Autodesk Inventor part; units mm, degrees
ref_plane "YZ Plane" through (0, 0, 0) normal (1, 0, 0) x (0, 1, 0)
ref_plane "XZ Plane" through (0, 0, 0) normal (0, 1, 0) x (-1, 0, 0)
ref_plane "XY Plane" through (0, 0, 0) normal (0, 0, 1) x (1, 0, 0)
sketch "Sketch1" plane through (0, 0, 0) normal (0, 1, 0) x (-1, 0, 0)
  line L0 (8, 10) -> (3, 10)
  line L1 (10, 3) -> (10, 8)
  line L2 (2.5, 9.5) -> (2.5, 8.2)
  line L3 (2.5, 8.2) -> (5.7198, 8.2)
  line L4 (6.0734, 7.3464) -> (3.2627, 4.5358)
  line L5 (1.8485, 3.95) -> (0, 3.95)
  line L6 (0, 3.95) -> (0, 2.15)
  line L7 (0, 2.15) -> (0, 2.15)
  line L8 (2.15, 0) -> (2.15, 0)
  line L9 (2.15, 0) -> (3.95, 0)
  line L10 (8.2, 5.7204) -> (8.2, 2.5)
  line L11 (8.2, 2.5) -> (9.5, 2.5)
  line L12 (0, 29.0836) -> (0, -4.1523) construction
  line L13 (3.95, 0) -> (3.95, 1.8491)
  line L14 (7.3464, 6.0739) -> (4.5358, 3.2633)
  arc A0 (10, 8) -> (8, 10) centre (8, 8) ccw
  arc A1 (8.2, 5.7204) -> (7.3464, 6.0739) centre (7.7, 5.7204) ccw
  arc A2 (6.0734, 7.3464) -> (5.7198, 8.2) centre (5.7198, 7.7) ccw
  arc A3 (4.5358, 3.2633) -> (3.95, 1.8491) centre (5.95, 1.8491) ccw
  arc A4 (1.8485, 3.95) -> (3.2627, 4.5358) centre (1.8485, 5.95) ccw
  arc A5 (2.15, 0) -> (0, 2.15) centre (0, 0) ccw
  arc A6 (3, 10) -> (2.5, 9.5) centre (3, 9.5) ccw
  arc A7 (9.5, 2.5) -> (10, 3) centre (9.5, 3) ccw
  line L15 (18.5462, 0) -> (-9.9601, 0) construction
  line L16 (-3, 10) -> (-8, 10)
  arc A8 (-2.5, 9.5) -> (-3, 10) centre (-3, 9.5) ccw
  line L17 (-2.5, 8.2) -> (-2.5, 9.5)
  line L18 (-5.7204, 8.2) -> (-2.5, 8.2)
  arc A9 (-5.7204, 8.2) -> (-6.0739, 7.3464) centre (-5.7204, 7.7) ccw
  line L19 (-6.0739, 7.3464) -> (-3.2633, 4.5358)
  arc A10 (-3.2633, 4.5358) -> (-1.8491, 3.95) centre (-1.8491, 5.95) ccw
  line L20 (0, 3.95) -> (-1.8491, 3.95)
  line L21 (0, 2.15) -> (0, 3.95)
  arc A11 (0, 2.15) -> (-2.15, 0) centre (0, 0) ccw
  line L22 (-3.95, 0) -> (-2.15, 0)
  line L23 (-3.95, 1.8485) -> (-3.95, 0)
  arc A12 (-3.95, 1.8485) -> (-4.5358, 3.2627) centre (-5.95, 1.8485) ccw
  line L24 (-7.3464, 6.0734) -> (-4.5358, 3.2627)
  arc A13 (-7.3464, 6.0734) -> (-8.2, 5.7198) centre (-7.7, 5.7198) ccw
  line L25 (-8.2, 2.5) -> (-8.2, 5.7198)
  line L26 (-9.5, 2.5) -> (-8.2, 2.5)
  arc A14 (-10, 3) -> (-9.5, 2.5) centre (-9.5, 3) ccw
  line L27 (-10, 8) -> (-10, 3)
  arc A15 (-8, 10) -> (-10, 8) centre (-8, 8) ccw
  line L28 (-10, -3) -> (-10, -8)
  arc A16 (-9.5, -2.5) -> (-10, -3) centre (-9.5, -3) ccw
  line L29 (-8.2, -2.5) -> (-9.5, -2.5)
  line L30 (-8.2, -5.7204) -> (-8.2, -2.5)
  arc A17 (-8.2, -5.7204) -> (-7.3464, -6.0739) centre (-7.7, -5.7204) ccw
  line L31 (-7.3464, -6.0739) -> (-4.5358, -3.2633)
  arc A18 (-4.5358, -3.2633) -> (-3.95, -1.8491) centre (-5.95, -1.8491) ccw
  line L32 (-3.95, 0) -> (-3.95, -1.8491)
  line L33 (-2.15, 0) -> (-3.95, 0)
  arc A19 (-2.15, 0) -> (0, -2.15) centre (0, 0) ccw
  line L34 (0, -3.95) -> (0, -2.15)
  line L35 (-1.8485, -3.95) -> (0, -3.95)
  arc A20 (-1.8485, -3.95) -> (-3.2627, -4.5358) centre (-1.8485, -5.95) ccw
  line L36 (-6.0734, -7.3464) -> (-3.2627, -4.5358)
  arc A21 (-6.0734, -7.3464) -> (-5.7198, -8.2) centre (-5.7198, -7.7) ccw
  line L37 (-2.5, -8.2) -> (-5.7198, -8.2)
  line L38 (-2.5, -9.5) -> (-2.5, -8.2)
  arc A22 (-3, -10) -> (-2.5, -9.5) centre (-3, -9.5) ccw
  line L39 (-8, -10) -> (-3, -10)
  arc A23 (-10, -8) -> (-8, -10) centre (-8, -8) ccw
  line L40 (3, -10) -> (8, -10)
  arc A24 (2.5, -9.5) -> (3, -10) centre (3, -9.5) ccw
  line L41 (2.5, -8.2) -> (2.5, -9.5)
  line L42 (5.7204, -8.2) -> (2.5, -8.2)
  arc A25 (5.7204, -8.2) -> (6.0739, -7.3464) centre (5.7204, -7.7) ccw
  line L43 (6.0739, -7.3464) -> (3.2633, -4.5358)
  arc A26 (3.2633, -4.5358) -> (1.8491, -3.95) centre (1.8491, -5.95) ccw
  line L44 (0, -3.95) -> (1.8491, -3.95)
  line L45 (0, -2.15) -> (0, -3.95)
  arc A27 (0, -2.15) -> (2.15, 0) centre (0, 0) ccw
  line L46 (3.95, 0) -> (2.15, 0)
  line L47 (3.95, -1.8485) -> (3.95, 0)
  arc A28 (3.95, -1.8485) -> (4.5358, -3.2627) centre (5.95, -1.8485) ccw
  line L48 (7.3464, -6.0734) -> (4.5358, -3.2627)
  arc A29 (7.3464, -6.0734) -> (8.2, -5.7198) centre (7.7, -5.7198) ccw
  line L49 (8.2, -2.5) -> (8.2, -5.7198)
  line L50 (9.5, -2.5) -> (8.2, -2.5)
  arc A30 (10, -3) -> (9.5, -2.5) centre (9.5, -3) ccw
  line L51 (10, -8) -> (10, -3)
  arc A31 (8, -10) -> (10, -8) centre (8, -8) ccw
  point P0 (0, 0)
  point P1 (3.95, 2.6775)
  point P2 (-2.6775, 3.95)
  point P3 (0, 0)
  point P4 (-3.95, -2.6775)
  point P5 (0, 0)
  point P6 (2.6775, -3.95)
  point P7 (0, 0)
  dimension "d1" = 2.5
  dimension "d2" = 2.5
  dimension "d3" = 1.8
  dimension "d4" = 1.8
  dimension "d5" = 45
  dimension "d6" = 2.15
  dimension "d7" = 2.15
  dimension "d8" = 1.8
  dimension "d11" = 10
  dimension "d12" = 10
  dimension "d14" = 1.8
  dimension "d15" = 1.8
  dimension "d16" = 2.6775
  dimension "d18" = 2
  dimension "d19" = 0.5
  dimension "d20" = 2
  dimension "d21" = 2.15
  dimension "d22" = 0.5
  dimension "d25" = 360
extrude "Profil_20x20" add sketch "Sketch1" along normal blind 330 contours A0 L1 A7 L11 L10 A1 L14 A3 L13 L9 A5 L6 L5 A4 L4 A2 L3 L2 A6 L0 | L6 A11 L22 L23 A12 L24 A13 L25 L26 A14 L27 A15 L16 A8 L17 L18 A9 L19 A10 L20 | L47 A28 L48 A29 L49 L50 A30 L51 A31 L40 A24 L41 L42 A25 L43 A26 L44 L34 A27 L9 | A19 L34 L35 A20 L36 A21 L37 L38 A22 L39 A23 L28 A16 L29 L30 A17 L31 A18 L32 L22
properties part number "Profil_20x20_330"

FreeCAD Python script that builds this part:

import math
import FreeCAD as App
import Part
import Sketcher

doc = App.newDocument("Part")
params = doc.addObject("Spreadsheet::Sheet", "Params")
for row, (alias, value) in enumerate([
    ("sketch1_radius", "2 mm"),
    ("sketch1_diameter", "4.3 mm"),
    ("sketch1_radius2", "0.5 mm"),
    ("sketch1_width", "1.3 mm"),
    ("pad1_length", "330 mm"),
], start=1):
    params.set(f"A{row}", alias)
    params.set(f"B{row}", "=" + value)
    params.setAlias(f"B{row}", alias)

body = doc.addObject("PartDesign::Body", "Body")

sketch1 = doc.addObject("Sketcher::SketchObject", "Sketch")
body.addObject(sketch1)
sketch1.AttachmentSupport = (doc.XZ_Plane, [""])
sketch1.MapMode = "FlatFace"
sketch1.addGeometry([
    Part.ArcOfCircle(Part.Circle(App.Vector(-8, 8, 0), App.Vector(0, 0, 1), 2), math.radians(90), math.radians(180)),
    Part.LineSegment(App.Vector(-8, 10, 0), App.Vector(-3, 10, 0)),
    Part.ArcOfCircle(Part.Circle(App.Vector(-3, 9.5, 0), App.Vector(0, 0, 1), 0.5), math.radians(0), math.radians(90)),
    Part.LineSegment(App.Vector(-2.5, 9.5, 0), App.Vector(-2.5, 8.2, 0)),
    Part.LineSegment(App.Vector(-2.5, 8.2, 0), App.Vector(-5.72, 8.2, 0)),
    Part.ArcOfCircle(Part.Circle(App.Vector(-5.72, 7.7, 0), App.Vector(0, 0, 1), 0.5), math.radians(90), math.radians(225)),
    Part.LineSegment(App.Vector(-6.07, 7.35, 0), App.Vector(-3.26, 4.54, 0)),
    Part.ArcOfCircle(Part.Circle(App.Vector(-1.85, 5.95, 0), App.Vector(0, 0, 1), 2), math.radians(-135), math.radians(-90)),
    Part.LineSegment(App.Vector(-1.85, 3.95, 0), App.Vector(1.85, 3.95, 0)),
    Part.ArcOfCircle(Part.Circle(App.Vector(1.85, 5.95, 0), App.Vector(0, 0, 1), 2), math.radians(-90), math.radians(-45)),
    Part.LineSegment(App.Vector(3.26, 4.54, 0), App.Vector(6.07, 7.35, 0)),
    Part.ArcOfCircle(Part.Circle(App.Vector(5.72, 7.7, 0), App.Vector(0, 0, 1), 0.5), math.radians(-45), math.radians(90)),
    Part.LineSegment(App.Vector(5.72, 8.2, 0), App.Vector(2.5, 8.2, 0)),
    Part.LineSegment(App.Vector(2.5, 8.2, 0), App.Vector(2.5, 9.5, 0)),
    Part.ArcOfCircle(Part.Circle(App.Vector(3, 9.5, 0), App.Vector(0, 0, 1), 0.5), math.radians(90), math.radians(180)),
    Part.LineSegment(App.Vector(3, 10, 0), App.Vector(8, 10, 0)),
    Part.ArcOfCircle(Part.Circle(App.Vector(8, 8, 0), App.Vector(0, 0, 1), 2), math.radians(0), math.radians(90)),
    Part.LineSegment(App.Vector(10, 8, 0), App.Vector(10, 3, 0)),
    Part.ArcOfCircle(Part.Circle(App.Vector(9.5, 3, 0), App.Vector(0, 0, 1), 0.5), math.radians(-90), math.radians(0)),
    Part.LineSegment(App.Vector(9.5, 2.5, 0), App.Vector(8.2, 2.5, 0)),
    Part.LineSegment(App.Vector(8.2, 2.5, 0), App.Vector(8.2, 5.72, 0)),
    Part.ArcOfCircle(Part.Circle(App.Vector(7.7, 5.72, 0), App.Vector(0, 0, 1), 0.5), math.radians(0), math.radians(135)),
    Part.LineSegment(App.Vector(7.35, 6.07, 0), App.Vector(4.54, 3.26, 0)),
    Part.ArcOfCircle(Part.Circle(App.Vector(5.95, 1.85, 0), App.Vector(0, 0, 1), 2), math.radians(135), math.radians(180)),
    Part.LineSegment(App.Vector(3.95, 1.85, 0), App.Vector(3.95, -1.85, 0)),
    Part.ArcOfCircle(Part.Circle(App.Vector(5.95, -1.85, 0), App.Vector(0, 0, 1), 2), math.radians(180), math.radians(225)),
    Part.LineSegment(App.Vector(4.54, -3.26, 0), App.Vector(7.35, -6.07, 0)),
    Part.ArcOfCircle(Part.Circle(App.Vector(7.7, -5.72, 0), App.Vector(0, 0, 1), 0.5), math.radians(-135), math.radians(0)),
    Part.LineSegment(App.Vector(8.2, -5.72, 0), App.Vector(8.2, -2.5, 0)),
    Part.LineSegment(App.Vector(8.2, -2.5, 0), App.Vector(9.5, -2.5, 0)),
    Part.ArcOfCircle(Part.Circle(App.Vector(9.5, -3, 0), App.Vector(0, 0, 1), 0.5), math.radians(0), math.radians(90)),
    Part.LineSegment(App.Vector(10, -3, 0), App.Vector(10, -8, 0)),
    Part.ArcOfCircle(Part.Circle(App.Vector(8, -8, 0), App.Vector(0, 0, 1), 2), math.radians(-90), math.radians(0)),
    Part.LineSegment(App.Vector(8, -10, 0), App.Vector(3, -10, 0)),
    Part.ArcOfCircle(Part.Circle(App.Vector(3, -9.5, 0), App.Vector(0, 0, 1), 0.5), math.radians(180), math.radians(270)),
    Part.LineSegment(App.Vector(2.5, -9.5, 0), App.Vector(2.5, -8.2, 0)),
    Part.LineSegment(App.Vector(2.5, -8.2, 0), App.Vector(5.72, -8.2, 0)),
    Part.ArcOfCircle(Part.Circle(App.Vector(5.72, -7.7, 0), App.Vector(0, 0, 1), 0.5), math.radians(-90), math.radians(45)),
    Part.LineSegment(App.Vector(6.07, -7.35, 0), App.Vector(3.26, -4.54, 0)),
    Part.ArcOfCircle(Part.Circle(App.Vector(1.85, -5.95, 0), App.Vector(0, 0, 1), 2), math.radians(45), math.radians(90)),
    Part.LineSegment(App.Vector(1.85, -3.95, 0), App.Vector(-1.85, -3.95, 0)),
    Part.ArcOfCircle(Part.Circle(App.Vector(-1.85, -5.95, 0), App.Vector(0, 0, 1), 2), math.radians(90), math.radians(135)),
    Part.LineSegment(App.Vector(-3.26, -4.54, 0), App.Vector(-6.07, -7.35, 0)),
    Part.ArcOfCircle(Part.Circle(App.Vector(-5.72, -7.7, 0), App.Vector(0, 0, 1), 0.5), math.radians(135), math.radians(270)),
    Part.LineSegment(App.Vector(-5.72, -8.2, 0), App.Vector(-2.5, -8.2, 0)),
    Part.LineSegment(App.Vector(-2.5, -8.2, 0), App.Vector(-2.5, -9.5, 0)),
    Part.ArcOfCircle(Part.Circle(App.Vector(-3, -9.5, 0), App.Vector(0, 0, 1), 0.5), math.radians(-90), math.radians(0)),
    Part.LineSegment(App.Vector(-3, -10, 0), App.Vector(-8, -10, 0)),
    Part.ArcOfCircle(Part.Circle(App.Vector(-8, -8, 0), App.Vector(0, 0, 1), 2), math.radians(180), math.radians(270)),
    Part.LineSegment(App.Vector(-10, -8, 0), App.Vector(-10, -3, 0)),
    Part.ArcOfCircle(Part.Circle(App.Vector(-9.5, -3, 0), App.Vector(0, 0, 1), 0.5), math.radians(90), math.radians(180)),
    Part.LineSegment(App.Vector(-9.5, -2.5, 0), App.Vector(-8.2, -2.5, 0)),
    Part.LineSegment(App.Vector(-8.2, -2.5, 0), App.Vector(-8.2, -5.72, 0)),
    Part.ArcOfCircle(Part.Circle(App.Vector(-7.7, -5.72, 0), App.Vector(0, 0, 1), 0.5), math.radians(180), math.radians(315)),
    Part.LineSegment(App.Vector(-7.35, -6.07, 0), App.Vector(-4.54, -3.26, 0)),
    Part.ArcOfCircle(Part.Circle(App.Vector(-5.95, -1.85, 0), App.Vector(0, 0, 1), 2), math.radians(-45), math.radians(0)),
    Part.LineSegment(App.Vector(-3.95, -1.85, 0), App.Vector(-3.95, 1.85, 0)),
    Part.ArcOfCircle(Part.Circle(App.Vector(-5.95, 1.85, 0), App.Vector(0, 0, 1), 2), math.radians(0), math.radians(45)),
    Part.LineSegment(App.Vector(-4.54, 3.26, 0), App.Vector(-7.35, 6.07, 0)),
    Part.ArcOfCircle(Part.Circle(App.Vector(-7.7, 5.72, 0), App.Vector(0, 0, 1), 0.5), math.radians(45), math.radians(180)),
    Part.LineSegment(App.Vector(-8.2, 5.72, 0), App.Vector(-8.2, 2.5, 0)),
    Part.LineSegment(App.Vector(-8.2, 2.5, 0), App.Vector(-9.5, 2.5, 0)),
    Part.ArcOfCircle(Part.Circle(App.Vector(-9.5, 3, 0), App.Vector(0, 0, 1), 0.5), math.radians(180), math.radians(270)),
    Part.LineSegment(App.Vector(-10, 3, 0), App.Vector(-10, 8, 0)),
    Part.Circle(App.Vector(0, 0, 0), App.Vector(0, 0, 1), 2.15),
], False)
sketch1.addConstraint([
    Sketcher.Constraint("Tangent", 0, 1, 1, 1),
    Sketcher.Constraint("Tangent", 1, 2, 2, 2),
    Sketcher.Constraint("Tangent", 2, 1, 3, 1),
    Sketcher.Constraint("Coincident", 3, 2, 4, 1),
    Sketcher.Constraint("Tangent", 4, 2, 5, 1),
    Sketcher.Constraint("Tangent", 5, 2, 6, 1),
    Sketcher.Constraint("Tangent", 6, 2, 7, 1),
    Sketcher.Constraint("Tangent", 7, 2, 8, 1),
    Sketcher.Constraint("Tangent", 8, 2, 9, 1),
    Sketcher.Constraint("Tangent", 9, 2, 10, 1),
    Sketcher.Constraint("Tangent", 10, 2, 11, 1),
    Sketcher.Constraint("Tangent", 11, 2, 12, 1),
    Sketcher.Constraint("Coincident", 12, 2, 13, 1),
    Sketcher.Constraint("Tangent", 13, 2, 14, 2),
    Sketcher.Constraint("Tangent", 14, 1, 15, 1),
    Sketcher.Constraint("Tangent", 15, 2, 16, 2),
    Sketcher.Constraint("Tangent", 16, 1, 17, 1),
    Sketcher.Constraint("Tangent", 17, 2, 18, 2),
    Sketcher.Constraint("Tangent", 18, 1, 19, 1),
    Sketcher.Constraint("Coincident", 19, 2, 20, 1),
    Sketcher.Constraint("Tangent", 20, 2, 21, 1),
    Sketcher.Constraint("Tangent", 21, 2, 22, 1),
    Sketcher.Constraint("Tangent", 22, 2, 23, 1),
    Sketcher.Constraint("Tangent", 23, 2, 24, 1),
    Sketcher.Constraint("Tangent", 24, 2, 25, 1),
    Sketcher.Constraint("Tangent", 25, 2, 26, 1),
    Sketcher.Constraint("Tangent", 26, 2, 27, 1),
    Sketcher.Constraint("Tangent", 27, 2, 28, 1),
    Sketcher.Constraint("Coincident", 28, 2, 29, 1),
    Sketcher.Constraint("Tangent", 29, 2, 30, 2),
    Sketcher.Constraint("Tangent", 30, 1, 31, 1),
    Sketcher.Constraint("Tangent", 31, 2, 32, 2),
    Sketcher.Constraint("Tangent", 32, 1, 33, 1),
    Sketcher.Constraint("Tangent", 33, 2, 34, 2),
    Sketcher.Constraint("Tangent", 34, 1, 35, 1),
    Sketcher.Constraint("Coincident", 35, 2, 36, 1),
    Sketcher.Constraint("Tangent", 36, 2, 37, 1),
    Sketcher.Constraint("Tangent", 37, 2, 38, 1),
    Sketcher.Constraint("Tangent", 38, 2, 39, 1),
    Sketcher.Constraint("Tangent", 39, 2, 40, 1),
    Sketcher.Constraint("Tangent", 40, 2, 41, 1),
    Sketcher.Constraint("Tangent", 41, 2, 42, 1),
    Sketcher.Constraint("Tangent", 42, 2, 43, 1),
    Sketcher.Constraint("Tangent", 43, 2, 44, 1),
    Sketcher.Constraint("Coincident", 44, 2, 45, 1),
    Sketcher.Constraint("Tangent", 45, 2, 46, 2),
    Sketcher.Constraint("Tangent", 46, 1, 47, 1),
    Sketcher.Constraint("Tangent", 47, 2, 48, 2),
    Sketcher.Constraint("Tangent", 48, 1, 49, 1),
    Sketcher.Constraint("Tangent", 49, 2, 50, 2),
    Sketcher.Constraint("Tangent", 50, 1, 51, 1),
    Sketcher.Constraint("Coincident", 51, 2, 52, 1),
    Sketcher.Constraint("Tangent", 52, 2, 53, 1),
    Sketcher.Constraint("Tangent", 53, 2, 54, 1),
    Sketcher.Constraint("Tangent", 54, 2, 55, 1),
    Sketcher.Constraint("Tangent", 55, 2, 56, 1),
    Sketcher.Constraint("Tangent", 56, 2, 57, 1),
    Sketcher.Constraint("Tangent", 57, 2, 58, 1),
    Sketcher.Constraint("Tangent", 58, 2, 59, 1),
    Sketcher.Constraint("Tangent", 59, 2, 60, 1),
    Sketcher.Constraint("Coincident", 60, 2, 61, 1),
    Sketcher.Constraint("Tangent", 61, 2, 62, 2),
    Sketcher.Constraint("Tangent", 62, 1, 63, 1),
    Sketcher.Constraint("Tangent", 63, 2, 0, 2),
    Sketcher.Constraint("Horizontal", 1),
    Sketcher.Constraint("Vertical", 3),
    Sketcher.Constraint("Horizontal", 4),
    Sketcher.Constraint("Horizontal", 8),
    Sketcher.Constraint("Horizontal", 12),
    Sketcher.Constraint("Vertical", 13),
    Sketcher.Constraint("Horizontal", 15),
    Sketcher.Constraint("Vertical", 17),
    Sketcher.Constraint("Horizontal", 19),
    Sketcher.Constraint("Vertical", 20),
    Sketcher.Constraint("Vertical", 24),
    Sketcher.Constraint("Vertical", 28),
    Sketcher.Constraint("Horizontal", 29),
    Sketcher.Constraint("Vertical", 31),
    Sketcher.Constraint("Horizontal", 33),
    Sketcher.Constraint("Vertical", 35),
    Sketcher.Constraint("Horizontal", 36),
    Sketcher.Constraint("Horizontal", 40),
    Sketcher.Constraint("Horizontal", 44),
    Sketcher.Constraint("Vertical", 45),
    Sketcher.Constraint("Horizontal", 47),
    Sketcher.Constraint("Vertical", 49),
    Sketcher.Constraint("Horizontal", 51),
    Sketcher.Constraint("Vertical", 52),
    Sketcher.Constraint("Vertical", 56),
    Sketcher.Constraint("Vertical", 60),
    Sketcher.Constraint("Horizontal", 61),
    Sketcher.Constraint("Vertical", 63),
    Sketcher.Constraint("Coincident", 64, 3, -1, 1),
    Sketcher.Constraint("Equal", 2, 5),
    Sketcher.Constraint("Equal", 0, 7),
    Sketcher.Constraint("Equal", 7, 9),
    Sketcher.Constraint("Equal", 5, 11),
    Sketcher.Constraint("Equal", 11, 14),
    Sketcher.Constraint("Equal", 9, 16),
    Sketcher.Constraint("Equal", 14, 18),
    Sketcher.Constraint("Equal", 18, 21),
    Sketcher.Constraint("Equal", 16, 23),
    Sketcher.Constraint("Equal", 23, 25),
    Sketcher.Constraint("Equal", 21, 27),
    Sketcher.Constraint("Equal", 27, 30),
    Sketcher.Constraint("Equal", 25, 32),
    Sketcher.Constraint("Equal", 30, 34),
    Sketcher.Constraint("Equal", 34, 37),
    Sketcher.Constraint("Equal", 32, 39),
    Sketcher.Constraint("Equal", 39, 41),
    Sketcher.Constraint("Equal", 37, 43),
    Sketcher.Constraint("Equal", 43, 46),
    Sketcher.Constraint("Equal", 41, 48),
    Sketcher.Constraint("Equal", 46, 50),
    Sketcher.Constraint("Equal", 50, 53),
    Sketcher.Constraint("Equal", 48, 55),
    Sketcher.Constraint("Equal", 55, 57),
    Sketcher.Constraint("Equal", 53, 59),
    Sketcher.Constraint("Equal", 59, 62),
    Sketcher.Constraint("Symmetric", 0, 3, 32, 3, -1, 1),
    Sketcher.Constraint("Symmetric", 5, 3, 37, 3, -1, 1),
    Sketcher.Constraint("Symmetric", 7, 3, 39, 3, -1, 1),
    Sketcher.Constraint("Symmetric", 11, 3, 43, 3, -1, 1),
    Sketcher.Constraint("Symmetric", 14, 3, 46, 3, -1, 1),
    Sketcher.Constraint("Symmetric", 18, 3, 50, 3, -1, 1),
    Sketcher.Constraint("Symmetric", 21, 3, 53, 3, -1, 1),
    Sketcher.Constraint("Symmetric", 23, 3, 55, 3, -1, 1),
    Sketcher.Constraint("Symmetric", 27, 3, 59, 3, -1, 1),
    Sketcher.Constraint("Symmetric", 2, 3, 14, 3, -2),
    Sketcher.Constraint("Symmetric", 30, 3, 50, 3, -2),
    Sketcher.Constraint("Symmetric", 35, 2, 44, 2, -2),
    Sketcher.Constraint("Symmetric", 19, 2, 60, 2, -2),
    Sketcher.Constraint("Perpendicular", 6, 10),
    Sketcher.Constraint("Parallel", 10, 22),
    Sketcher.Constraint("Perpendicular", 22, 26),
    Sketcher.Constraint("Perpendicular", 38, 42),
    Sketcher.Constraint("Perpendicular", 54, 58),
    Sketcher.Constraint("Horizontal", 6, 2, 9, 2),
    Sketcher.Constraint("Equal", 61, 3),
    Sketcher.Constraint("Equal", 47, 17),
    Sketcher.Constraint("Equal", 36, 20),
    Sketcher.Constraint("Equal", 40, 24),
    Sketcher.Constraint("Equal", 44, 28),
    Sketcher.Constraint("Equal", 10, 22),
    Sketcher.Constraint("Radius", 0, 2.0),
    Sketcher.Constraint("Diameter", 64, 4.3),
    Sketcher.Constraint("Radius", 2, 0.5),
    Sketcher.Constraint("DistanceY", -1, 1, 0, 1, 10.0),
    Sketcher.Constraint("DistanceX", 2, 1, -1, 1, 2.5),
    Sketcher.Constraint("DistanceX", 19, 2, 19, 1, 1.3),
    Sketcher.Constraint("DistanceY", -1, 1, 7, 3, 5.95),
    Sketcher.Constraint("DistanceX", 4, 2, 4, 1, 3.2198),
    Sketcher.Constraint("DistanceX", 8, 1, 8, 2, 3.6976),
])
sketch1.setExpression("Constraints[144]", "Params.sketch1_radius")
sketch1.setExpression("Constraints[145]", "Params.sketch1_diameter")
sketch1.setExpression("Constraints[146]", "Params.sketch1_radius2")
sketch1.setExpression("Constraints[149]", "Params.sketch1_width")
pad1 = doc.addObject("PartDesign::Pad", "Pad")
body.addObject(pad1)
pad1.Profile = sketch1
pad1.setExpression("Length", "Params.pad1_length")
pad1.Reversed = True

doc.recompute()
